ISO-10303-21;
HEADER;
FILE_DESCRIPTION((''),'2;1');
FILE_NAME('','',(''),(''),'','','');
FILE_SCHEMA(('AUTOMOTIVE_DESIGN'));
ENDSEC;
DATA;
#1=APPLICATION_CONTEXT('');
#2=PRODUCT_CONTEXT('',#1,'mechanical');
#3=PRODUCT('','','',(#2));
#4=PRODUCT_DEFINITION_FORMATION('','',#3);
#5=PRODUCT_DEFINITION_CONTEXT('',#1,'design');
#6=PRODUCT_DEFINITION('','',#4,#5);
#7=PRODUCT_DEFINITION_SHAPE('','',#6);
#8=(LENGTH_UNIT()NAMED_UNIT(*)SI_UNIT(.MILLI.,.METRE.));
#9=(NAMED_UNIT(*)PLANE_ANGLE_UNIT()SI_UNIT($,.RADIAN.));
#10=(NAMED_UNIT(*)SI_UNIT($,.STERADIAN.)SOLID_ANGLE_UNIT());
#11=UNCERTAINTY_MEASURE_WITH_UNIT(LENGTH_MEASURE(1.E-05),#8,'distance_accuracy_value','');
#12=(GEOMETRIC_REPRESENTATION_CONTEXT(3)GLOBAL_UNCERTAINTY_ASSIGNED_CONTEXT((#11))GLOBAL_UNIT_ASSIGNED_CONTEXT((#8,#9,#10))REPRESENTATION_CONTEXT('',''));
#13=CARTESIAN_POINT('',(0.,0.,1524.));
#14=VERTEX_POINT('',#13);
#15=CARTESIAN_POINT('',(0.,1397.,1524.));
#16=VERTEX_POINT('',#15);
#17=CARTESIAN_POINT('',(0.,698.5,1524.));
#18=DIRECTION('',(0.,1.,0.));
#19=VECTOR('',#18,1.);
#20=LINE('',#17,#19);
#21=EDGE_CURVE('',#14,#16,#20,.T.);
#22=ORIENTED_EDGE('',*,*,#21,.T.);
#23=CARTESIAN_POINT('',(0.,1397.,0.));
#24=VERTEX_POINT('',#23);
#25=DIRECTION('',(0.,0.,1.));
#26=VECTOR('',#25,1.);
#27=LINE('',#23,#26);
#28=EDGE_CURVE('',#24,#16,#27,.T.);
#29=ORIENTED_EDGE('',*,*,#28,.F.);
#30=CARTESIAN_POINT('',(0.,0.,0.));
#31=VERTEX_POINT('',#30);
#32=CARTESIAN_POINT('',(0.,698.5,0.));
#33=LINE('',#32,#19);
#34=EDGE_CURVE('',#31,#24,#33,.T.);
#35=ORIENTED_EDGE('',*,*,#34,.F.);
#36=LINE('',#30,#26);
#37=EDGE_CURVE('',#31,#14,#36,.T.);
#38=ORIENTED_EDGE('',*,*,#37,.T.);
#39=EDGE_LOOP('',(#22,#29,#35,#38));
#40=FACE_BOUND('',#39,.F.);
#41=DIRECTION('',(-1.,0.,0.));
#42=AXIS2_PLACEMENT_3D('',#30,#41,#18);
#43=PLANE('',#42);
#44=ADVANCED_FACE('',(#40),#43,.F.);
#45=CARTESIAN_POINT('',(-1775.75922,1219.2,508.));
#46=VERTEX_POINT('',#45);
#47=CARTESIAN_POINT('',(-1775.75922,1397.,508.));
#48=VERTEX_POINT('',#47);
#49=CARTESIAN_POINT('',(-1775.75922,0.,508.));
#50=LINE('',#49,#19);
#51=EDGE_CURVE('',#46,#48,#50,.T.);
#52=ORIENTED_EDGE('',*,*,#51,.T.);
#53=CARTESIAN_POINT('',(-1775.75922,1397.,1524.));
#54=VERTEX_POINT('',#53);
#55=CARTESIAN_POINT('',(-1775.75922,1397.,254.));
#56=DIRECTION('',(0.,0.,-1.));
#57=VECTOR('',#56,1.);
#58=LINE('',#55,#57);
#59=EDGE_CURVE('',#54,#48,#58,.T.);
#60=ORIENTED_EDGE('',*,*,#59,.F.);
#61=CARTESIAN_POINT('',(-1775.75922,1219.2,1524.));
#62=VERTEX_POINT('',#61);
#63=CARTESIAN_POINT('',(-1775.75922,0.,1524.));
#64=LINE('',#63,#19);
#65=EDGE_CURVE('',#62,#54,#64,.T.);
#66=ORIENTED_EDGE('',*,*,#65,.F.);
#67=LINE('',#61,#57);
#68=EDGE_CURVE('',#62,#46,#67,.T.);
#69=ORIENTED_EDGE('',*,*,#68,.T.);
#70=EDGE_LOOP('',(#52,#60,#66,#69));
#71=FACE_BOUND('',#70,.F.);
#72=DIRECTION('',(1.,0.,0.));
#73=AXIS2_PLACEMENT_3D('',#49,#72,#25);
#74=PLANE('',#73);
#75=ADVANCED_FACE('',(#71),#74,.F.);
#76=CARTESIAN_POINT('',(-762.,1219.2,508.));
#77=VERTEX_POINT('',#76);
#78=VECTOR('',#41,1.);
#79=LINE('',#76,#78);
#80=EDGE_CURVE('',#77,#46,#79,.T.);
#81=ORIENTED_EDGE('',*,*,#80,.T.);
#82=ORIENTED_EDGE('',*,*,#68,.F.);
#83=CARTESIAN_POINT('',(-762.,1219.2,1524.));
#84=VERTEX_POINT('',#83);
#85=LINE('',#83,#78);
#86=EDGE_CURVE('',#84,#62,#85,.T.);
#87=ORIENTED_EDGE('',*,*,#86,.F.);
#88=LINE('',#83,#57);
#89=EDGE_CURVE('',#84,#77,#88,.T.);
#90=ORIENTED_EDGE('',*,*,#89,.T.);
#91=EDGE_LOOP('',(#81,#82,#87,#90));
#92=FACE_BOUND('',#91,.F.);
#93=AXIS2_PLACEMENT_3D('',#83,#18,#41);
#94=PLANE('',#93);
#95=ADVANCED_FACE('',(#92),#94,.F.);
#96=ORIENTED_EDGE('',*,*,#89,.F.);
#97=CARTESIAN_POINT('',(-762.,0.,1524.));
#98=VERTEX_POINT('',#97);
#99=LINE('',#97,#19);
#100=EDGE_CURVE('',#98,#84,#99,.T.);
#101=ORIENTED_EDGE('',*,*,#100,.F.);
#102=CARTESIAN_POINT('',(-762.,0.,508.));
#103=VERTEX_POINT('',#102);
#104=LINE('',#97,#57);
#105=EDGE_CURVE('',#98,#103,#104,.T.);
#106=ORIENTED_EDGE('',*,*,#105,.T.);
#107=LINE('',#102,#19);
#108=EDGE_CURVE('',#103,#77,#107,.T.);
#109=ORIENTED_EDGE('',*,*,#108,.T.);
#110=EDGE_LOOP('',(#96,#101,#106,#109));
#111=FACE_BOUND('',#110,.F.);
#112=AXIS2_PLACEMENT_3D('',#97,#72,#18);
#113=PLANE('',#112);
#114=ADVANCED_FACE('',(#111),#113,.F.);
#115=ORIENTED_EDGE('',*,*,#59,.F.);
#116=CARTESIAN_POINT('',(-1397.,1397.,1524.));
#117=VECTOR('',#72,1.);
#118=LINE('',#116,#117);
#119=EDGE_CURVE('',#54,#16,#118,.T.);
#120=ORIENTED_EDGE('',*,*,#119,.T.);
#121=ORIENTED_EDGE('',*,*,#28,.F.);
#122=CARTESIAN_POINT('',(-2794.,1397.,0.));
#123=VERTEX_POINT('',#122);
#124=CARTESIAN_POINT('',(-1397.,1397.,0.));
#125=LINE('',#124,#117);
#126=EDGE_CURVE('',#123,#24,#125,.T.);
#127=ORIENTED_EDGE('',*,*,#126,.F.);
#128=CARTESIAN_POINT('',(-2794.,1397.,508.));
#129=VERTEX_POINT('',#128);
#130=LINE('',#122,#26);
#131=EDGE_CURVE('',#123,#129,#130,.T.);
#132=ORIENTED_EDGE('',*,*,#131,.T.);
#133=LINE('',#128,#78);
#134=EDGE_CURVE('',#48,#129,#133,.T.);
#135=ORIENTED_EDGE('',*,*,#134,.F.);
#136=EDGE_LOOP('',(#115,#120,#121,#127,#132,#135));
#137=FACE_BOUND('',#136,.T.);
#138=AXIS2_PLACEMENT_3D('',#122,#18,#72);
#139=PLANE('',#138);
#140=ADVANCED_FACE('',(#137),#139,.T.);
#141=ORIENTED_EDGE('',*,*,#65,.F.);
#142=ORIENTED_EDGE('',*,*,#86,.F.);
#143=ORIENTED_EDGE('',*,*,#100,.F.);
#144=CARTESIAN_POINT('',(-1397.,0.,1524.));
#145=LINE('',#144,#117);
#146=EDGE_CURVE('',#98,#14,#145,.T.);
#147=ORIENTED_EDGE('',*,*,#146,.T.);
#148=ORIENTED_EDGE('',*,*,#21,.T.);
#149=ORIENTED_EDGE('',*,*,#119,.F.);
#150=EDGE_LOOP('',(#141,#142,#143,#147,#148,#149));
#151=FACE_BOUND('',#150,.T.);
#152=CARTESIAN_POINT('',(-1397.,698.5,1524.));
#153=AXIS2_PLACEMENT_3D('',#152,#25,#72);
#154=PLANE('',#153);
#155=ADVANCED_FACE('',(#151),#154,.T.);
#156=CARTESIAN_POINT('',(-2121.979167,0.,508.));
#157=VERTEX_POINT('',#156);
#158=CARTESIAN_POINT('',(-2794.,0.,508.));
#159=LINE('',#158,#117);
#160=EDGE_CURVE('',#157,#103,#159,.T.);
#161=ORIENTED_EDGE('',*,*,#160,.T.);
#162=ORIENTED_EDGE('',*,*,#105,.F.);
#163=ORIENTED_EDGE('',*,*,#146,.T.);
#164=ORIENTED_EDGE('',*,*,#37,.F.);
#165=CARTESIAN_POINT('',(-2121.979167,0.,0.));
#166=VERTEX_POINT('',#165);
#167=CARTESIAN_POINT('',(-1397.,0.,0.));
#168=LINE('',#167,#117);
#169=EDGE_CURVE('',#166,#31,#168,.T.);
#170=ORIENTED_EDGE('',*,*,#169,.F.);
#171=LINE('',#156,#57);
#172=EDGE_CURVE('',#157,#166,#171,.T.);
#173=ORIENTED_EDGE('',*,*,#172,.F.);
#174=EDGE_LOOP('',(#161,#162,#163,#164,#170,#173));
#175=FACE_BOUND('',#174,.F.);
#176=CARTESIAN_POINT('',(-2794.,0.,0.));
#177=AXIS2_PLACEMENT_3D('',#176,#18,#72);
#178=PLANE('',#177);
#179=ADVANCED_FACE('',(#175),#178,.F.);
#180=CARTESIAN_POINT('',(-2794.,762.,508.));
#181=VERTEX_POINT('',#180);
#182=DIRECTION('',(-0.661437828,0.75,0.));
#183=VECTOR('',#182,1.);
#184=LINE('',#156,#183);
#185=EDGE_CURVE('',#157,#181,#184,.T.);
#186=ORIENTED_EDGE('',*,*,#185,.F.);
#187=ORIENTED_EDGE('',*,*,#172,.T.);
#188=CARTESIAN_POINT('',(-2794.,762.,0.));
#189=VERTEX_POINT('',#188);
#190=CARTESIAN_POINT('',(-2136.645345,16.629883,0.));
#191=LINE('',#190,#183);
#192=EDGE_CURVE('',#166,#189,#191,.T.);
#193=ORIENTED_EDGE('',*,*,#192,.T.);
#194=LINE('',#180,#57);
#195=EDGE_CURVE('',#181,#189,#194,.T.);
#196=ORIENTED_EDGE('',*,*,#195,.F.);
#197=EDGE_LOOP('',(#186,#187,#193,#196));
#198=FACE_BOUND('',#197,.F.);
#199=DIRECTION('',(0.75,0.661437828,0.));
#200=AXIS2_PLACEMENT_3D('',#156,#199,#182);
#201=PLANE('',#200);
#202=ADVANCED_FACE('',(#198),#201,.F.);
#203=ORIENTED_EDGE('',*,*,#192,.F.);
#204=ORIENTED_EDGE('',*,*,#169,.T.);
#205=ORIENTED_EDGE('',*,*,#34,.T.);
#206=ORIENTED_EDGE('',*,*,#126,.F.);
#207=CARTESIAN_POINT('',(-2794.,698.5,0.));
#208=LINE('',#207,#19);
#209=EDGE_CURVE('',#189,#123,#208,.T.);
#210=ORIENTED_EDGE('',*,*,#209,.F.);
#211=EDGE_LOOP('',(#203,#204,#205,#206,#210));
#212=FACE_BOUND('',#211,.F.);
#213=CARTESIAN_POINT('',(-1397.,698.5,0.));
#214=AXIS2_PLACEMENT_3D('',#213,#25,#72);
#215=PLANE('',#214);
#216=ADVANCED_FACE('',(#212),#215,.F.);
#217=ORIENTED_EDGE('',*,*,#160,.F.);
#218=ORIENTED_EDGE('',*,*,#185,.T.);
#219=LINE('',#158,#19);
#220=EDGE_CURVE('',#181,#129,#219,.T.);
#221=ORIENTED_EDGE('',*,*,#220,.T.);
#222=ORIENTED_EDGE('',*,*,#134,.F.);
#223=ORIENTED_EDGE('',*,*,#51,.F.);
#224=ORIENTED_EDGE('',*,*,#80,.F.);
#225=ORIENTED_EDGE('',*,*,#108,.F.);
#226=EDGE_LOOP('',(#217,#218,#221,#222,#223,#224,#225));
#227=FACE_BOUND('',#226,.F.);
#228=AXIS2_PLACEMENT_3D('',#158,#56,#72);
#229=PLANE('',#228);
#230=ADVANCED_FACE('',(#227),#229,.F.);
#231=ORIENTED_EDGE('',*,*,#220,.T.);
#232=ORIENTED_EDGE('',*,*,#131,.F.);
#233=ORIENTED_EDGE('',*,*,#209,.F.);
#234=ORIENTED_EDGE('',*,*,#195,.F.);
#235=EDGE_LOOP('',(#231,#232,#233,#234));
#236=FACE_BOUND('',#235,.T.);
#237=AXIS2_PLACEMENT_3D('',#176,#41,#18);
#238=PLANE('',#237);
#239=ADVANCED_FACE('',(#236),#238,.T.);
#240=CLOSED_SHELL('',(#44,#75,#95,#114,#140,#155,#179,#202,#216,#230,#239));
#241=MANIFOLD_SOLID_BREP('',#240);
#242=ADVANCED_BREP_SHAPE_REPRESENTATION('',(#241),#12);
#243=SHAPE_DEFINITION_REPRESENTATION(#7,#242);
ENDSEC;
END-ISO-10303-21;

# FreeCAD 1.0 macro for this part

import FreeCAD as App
import Part
import Sketcher

V = App.Vector
Q = App.Units.Quantity


def add_polygon(sketch, points):
    """Adds a closed chain of lines whose ends are joined by coincident constraints."""
    first, n = sketch.GeometryCount, len(points)
    for a, b in zip(points, points[1:] + points[:1]):
        sketch.addGeometry(Part.LineSegment(App.Vector(*a, 0), App.Vector(*b, 0)), False)
    for i in range(n):
        sketch.addConstraint(Sketcher.Constraint("Coincident", first + i, 2, first + (i + 1) % n, 1))

doc = App.newDocument("Part")
body = doc.addObject("PartDesign::Body", "Body")

# Sketch on XY plane
sketch1 = doc.addObject("Sketcher::SketchObject", "Sketch")
body.addObject(sketch1)
sketch1.AttachmentSupport = (doc.XY_Plane, [""])
sketch1.MapMode = "FlatFace"
add_polygon(sketch1, [(-2794, 1397), (-2794, 0), (0, 0), (0, 1397)])  # lines 0-3
sketch1.addConstraint(Sketcher.Constraint("Vertical", 0))
sketch1.addConstraint(Sketcher.Constraint("Horizontal", 1))
sketch1.addConstraint(Sketcher.Constraint("Vertical", 2))
sketch1.addConstraint(Sketcher.Constraint("Horizontal", 3))
sketch1.addConstraint(Sketcher.Constraint("Coincident", 1, 2, -1, 1))
sketch1.addConstraint(Sketcher.Constraint("DistanceX", 1, 1, 1, 2, Q("110 in")))
sketch1.addConstraint(Sketcher.Constraint("DistanceY", 0, 2, 0, 1, Q("55 in")))
pad1 = doc.addObject("PartDesign::Pad", "Pad")
body.addObject(pad1)
pad1.Profile = sketch1
pad1.Length = Q("60 in")

# Sketch on XY plane
sketch2 = doc.addObject("Sketcher::SketchObject", "Sketch001")
body.addObject(sketch2)
sketch2.AttachmentSupport = (doc.XY_Plane, [""])
sketch2.MapMode = "FlatFace"
sketch2.AttachmentOffset = App.Placement(V(0, 0, 60 * 25.4), App.Rotation())
add_polygon(sketch2, [(-762, 0), (-762, 1219.2), (-1775.75922, 1219.2), (-1775.75922, 0)])  # lines 0-3
sketch2.addConstraint(Sketcher.Constraint("Vertical", 0))
sketch2.addConstraint(Sketcher.Constraint("Horizontal", 1))
sketch2.addConstraint(Sketcher.Constraint("Vertical", 2))
sketch2.addConstraint(Sketcher.Constraint("Horizontal", 3))
sketch2.addConstraint(Sketcher.Constraint("PointOnObject", 2, 2, -1))
sketch2.addConstraint(Sketcher.Constraint("DistanceY", 0, 1, 0, 2, Q("48 in")))
sketch2.addConstraint(Sketcher.Constraint("DistanceX", 0, 2, -1, 1, Q("30 in")))
sketch2.addConstraint(Sketcher.Constraint("DistanceX", 1, 2, 1, 1, Q("1013.75922 mm")))
pocket1 = doc.addObject("PartDesign::Pocket", "Pocket")
body.addObject(pocket1)
pocket1.Profile = sketch2
pocket1.Length = Q("40 in")

# Sketch on XZ plane
sketch3 = doc.addObject("Sketcher::SketchObject", "Sketch002")
body.addObject(sketch3)
sketch3.AttachmentSupport = (doc.XZ_Plane, [""])
sketch3.MapMode = "FlatFace"
add_polygon(sketch3, [(-2794, 1524), (-2794, 508), (-1775.75922, 508), (-1775.75922, 1524)])  # lines 0-3
sketch3.addConstraint(Sketcher.Constraint("Vertical", 0))
sketch3.addConstraint(Sketcher.Constraint("Horizontal", 1))
sketch3.addConstraint(Sketcher.Constraint("Vertical", 2))
sketch3.addConstraint(Sketcher.Constraint("Horizontal", 3))
sketch3.addConstraint(Sketcher.Constraint("DistanceY", 0, 2, 0, 1, Q("40 in")))
sketch3.addConstraint(Sketcher.Constraint("DistanceX", 0, 2, -1, 1, Q("110 in")))
sketch3.addConstraint(Sketcher.Constraint("DistanceY", -1, 1, 0, 2, Q("20 in")))
sketch3.addConstraint(Sketcher.Constraint("DistanceX", 1, 1, 1, 2, Q("1018.24078 mm")))
pocket2 = doc.addObject("PartDesign::Pocket", "Pocket001")
body.addObject(pocket2)
pocket2.Profile = sketch3
pocket2.Length = Q("131.1 in")

# Sketch on XY plane
sketch4 = doc.addObject("Sketcher::SketchObject", "Sketch003")
body.addObject(sketch4)
sketch4.AttachmentSupport = (doc.XY_Plane, [""])
sketch4.MapMode = "FlatFace"
sketch4.AttachmentOffset = App.Placement(V(0, 0, 20 * 25.4), App.Rotation())
add_polygon(sketch4, [(-2121.979167, 0), (-2794, 762), (-2794, 0)])  # lines 0-2
sketch4.addConstraint(Sketcher.Constraint("Vertical", 1))
sketch4.addConstraint(Sketcher.Constraint("Horizontal", 2))
sketch4.addConstraint(Sketcher.Constraint("PointOnObject", 1, 2, -1))
sketch4.addConstraint(Sketcher.Constraint("DistanceY", 1, 2, 1, 1, Q("30 in")))
sketch4.addConstraint(Sketcher.Constraint("Distance", 0, Q("40 in")))
sketch4.addConstraint(Sketcher.Constraint("DistanceX", 0, 2, -1, 1, Q("110 in")))
pocket3 = doc.addObject("PartDesign::Pocket", "Pocket002")
body.addObject(pocket3)
pocket3.Profile = sketch4
pocket3.Length = Q("69.8 in")

doc.recompute()
